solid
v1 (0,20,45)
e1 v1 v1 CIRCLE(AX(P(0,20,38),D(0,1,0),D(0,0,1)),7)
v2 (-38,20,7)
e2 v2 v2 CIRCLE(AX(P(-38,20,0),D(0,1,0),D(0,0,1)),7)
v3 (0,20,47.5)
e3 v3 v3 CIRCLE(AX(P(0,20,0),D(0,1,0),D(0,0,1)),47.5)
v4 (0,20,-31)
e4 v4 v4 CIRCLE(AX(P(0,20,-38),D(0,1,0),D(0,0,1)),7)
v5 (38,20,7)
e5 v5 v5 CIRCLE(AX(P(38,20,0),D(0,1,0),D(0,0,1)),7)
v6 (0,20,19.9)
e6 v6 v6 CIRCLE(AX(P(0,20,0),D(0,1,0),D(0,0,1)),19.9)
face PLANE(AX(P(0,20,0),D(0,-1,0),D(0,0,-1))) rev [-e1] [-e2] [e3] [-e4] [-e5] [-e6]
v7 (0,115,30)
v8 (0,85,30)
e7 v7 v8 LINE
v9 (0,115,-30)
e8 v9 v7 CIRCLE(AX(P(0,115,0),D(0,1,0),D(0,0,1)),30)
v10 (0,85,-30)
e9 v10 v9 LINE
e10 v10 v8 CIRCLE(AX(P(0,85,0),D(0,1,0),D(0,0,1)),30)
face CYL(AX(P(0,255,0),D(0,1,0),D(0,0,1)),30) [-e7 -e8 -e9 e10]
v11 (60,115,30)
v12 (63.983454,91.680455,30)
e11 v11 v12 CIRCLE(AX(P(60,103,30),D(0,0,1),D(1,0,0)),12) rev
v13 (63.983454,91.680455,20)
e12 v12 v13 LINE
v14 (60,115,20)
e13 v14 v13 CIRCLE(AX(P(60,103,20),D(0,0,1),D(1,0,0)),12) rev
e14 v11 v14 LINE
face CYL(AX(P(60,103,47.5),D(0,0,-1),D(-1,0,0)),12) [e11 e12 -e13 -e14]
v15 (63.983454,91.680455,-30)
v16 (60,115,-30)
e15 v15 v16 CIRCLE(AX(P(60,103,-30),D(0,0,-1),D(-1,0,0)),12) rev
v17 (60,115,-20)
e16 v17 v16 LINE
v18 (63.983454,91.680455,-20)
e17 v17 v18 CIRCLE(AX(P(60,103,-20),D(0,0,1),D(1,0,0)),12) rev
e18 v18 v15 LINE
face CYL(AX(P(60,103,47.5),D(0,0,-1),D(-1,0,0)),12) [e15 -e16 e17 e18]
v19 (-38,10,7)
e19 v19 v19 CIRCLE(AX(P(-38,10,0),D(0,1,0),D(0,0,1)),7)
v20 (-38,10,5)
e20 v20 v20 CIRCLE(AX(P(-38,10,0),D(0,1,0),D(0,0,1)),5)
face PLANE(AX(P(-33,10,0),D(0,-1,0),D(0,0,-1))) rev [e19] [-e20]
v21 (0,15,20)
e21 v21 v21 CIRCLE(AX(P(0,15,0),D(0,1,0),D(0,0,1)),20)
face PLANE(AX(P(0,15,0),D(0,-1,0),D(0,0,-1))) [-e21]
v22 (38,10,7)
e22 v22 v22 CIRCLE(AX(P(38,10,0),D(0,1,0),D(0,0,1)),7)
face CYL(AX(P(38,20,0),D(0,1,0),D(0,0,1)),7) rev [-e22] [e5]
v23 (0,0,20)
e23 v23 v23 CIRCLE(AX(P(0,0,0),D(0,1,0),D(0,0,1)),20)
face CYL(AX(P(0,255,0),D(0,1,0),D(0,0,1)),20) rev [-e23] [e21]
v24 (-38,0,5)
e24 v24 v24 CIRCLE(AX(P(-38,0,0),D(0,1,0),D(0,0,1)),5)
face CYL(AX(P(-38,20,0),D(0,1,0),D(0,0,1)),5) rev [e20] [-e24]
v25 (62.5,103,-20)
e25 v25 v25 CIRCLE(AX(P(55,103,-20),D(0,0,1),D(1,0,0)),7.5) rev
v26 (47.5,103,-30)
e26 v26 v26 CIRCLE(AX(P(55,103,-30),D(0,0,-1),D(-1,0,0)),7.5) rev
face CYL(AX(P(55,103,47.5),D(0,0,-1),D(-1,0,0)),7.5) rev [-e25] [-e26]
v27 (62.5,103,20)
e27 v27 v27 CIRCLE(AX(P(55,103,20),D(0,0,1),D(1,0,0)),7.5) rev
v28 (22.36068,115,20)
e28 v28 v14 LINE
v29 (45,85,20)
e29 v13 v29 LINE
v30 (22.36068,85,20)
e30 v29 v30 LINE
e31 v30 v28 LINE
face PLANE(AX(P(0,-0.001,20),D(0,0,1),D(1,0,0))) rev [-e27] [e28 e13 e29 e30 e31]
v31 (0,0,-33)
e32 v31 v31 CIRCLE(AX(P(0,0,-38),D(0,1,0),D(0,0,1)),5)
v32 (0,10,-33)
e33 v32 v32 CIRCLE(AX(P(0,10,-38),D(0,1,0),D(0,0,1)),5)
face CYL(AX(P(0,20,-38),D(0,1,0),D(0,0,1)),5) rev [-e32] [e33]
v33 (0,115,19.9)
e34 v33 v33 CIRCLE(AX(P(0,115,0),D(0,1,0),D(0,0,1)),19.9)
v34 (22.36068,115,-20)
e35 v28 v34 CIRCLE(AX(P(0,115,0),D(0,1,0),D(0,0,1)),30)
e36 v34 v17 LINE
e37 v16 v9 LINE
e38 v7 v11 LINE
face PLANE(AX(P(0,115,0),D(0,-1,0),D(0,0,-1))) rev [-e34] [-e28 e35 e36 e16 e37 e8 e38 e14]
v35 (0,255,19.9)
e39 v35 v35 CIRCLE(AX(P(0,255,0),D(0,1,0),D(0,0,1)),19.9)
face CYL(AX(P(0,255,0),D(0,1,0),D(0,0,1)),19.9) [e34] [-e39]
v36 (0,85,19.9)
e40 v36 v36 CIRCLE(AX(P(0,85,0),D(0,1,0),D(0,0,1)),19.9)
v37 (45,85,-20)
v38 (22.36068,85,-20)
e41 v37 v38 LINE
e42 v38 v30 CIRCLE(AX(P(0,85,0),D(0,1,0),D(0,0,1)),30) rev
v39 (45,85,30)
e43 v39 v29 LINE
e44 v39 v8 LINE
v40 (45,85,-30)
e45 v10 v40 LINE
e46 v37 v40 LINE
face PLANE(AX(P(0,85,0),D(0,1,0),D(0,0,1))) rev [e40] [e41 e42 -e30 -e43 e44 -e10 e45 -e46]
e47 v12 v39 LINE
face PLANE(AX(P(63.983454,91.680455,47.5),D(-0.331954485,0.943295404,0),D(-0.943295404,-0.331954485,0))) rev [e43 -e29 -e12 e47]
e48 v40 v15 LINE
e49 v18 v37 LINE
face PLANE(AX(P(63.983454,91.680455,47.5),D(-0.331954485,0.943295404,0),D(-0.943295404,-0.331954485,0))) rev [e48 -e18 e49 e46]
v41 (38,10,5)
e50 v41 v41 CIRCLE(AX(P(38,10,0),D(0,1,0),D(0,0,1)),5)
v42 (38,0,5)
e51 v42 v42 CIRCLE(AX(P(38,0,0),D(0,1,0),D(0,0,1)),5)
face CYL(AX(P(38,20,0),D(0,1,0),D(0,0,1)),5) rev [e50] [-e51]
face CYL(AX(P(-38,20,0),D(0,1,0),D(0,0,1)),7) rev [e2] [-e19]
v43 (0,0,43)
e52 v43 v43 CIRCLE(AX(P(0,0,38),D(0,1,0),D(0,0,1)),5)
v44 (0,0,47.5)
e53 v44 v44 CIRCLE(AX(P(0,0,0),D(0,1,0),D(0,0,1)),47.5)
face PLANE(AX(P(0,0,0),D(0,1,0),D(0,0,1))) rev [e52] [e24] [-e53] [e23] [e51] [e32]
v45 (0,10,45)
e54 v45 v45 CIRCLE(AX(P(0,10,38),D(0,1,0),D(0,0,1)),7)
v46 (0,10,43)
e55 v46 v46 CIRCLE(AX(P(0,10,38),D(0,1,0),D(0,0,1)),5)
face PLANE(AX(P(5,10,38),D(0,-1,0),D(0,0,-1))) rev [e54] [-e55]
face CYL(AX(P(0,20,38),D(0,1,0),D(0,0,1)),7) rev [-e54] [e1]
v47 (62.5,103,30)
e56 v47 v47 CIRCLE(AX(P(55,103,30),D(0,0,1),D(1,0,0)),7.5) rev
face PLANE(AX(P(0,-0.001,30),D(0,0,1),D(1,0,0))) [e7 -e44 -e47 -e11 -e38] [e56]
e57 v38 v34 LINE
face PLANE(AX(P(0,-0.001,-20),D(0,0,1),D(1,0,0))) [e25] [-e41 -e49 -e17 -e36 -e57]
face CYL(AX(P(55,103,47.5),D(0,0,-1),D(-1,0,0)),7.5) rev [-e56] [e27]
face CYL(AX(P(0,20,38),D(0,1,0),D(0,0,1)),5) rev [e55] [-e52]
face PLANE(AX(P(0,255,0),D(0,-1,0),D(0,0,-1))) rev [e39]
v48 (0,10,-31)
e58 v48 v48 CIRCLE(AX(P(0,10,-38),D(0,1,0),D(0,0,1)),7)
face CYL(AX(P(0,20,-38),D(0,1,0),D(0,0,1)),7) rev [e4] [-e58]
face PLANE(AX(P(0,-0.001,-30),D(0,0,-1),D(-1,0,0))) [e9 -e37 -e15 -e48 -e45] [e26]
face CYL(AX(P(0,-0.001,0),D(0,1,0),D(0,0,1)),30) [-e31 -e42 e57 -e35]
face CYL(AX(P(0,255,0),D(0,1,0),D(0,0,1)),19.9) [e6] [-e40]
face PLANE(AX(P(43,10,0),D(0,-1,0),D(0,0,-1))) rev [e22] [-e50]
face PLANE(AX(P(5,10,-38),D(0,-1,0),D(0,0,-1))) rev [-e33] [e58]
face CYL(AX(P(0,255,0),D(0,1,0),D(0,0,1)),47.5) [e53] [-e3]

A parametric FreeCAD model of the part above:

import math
import FreeCAD as App
import Part
import Sketcher

V = App.Vector


def add_polygon(sketch, points):
    """Adds a closed chain of lines whose ends are joined by coincident constraints."""
    first, n = sketch.GeometryCount, len(points)
    for a, b in zip(points, points[1:] + points[:1]):
        sketch.addGeometry(Part.LineSegment(App.Vector(*a, 0), App.Vector(*b, 0)), False)
    for i in range(n):
        sketch.addConstraint(Sketcher.Constraint("Coincident", first + i, 2, first + (i + 1) % n, 1))

doc = App.newDocument("Part")
body = doc.addObject("PartDesign::Body", "Body")

sketch1 = doc.addObject("Sketcher::SketchObject", "Sketch")
body.addObject(sketch1)
sketch1.AttachmentSupport = (doc.XY_Plane, [""])
sketch1.MapMode = "FlatFace"
add_polygon(sketch1, [(-48, 0), (-20, 0), (-20, 15), (0, 15), (0, 255), (-20, 255), (-20, 115), (-30, 115), (-30, 85), (-20, 85), (-20, 20), (-48, 20)])
sketch1.addConstraint([
    Sketcher.Constraint("Horizontal", 0),
    Sketcher.Constraint("Vertical", 1),
    Sketcher.Constraint("Horizontal", 2),
    Sketcher.Constraint("Vertical", 3),
    Sketcher.Constraint("Horizontal", 4),
    Sketcher.Constraint("Vertical", 5),
    Sketcher.Constraint("Horizontal", 6),
    Sketcher.Constraint("Vertical", 7),
    Sketcher.Constraint("Horizontal", 8),
    Sketcher.Constraint("Vertical", 9),
    Sketcher.Constraint("Horizontal", 10),
    Sketcher.Constraint("Vertical", 11),
    Sketcher.Constraint("PointOnObject", 0, 2, -1),
    Sketcher.Constraint("PointOnObject", 2, 2, -2),
    Sketcher.Constraint("Vertical", 5, 2, 8, 2),
    Sketcher.Constraint("Equal", 2, 11),
    Sketcher.Constraint("DistanceX", 2, 1, 2, 2, 20.0),
    Sketcher.Constraint("DistanceY", 1, 1, 1, 2, 15.0),
    Sketcher.Constraint("DistanceY", 3, 1, 3, 2, 240.0),
    Sketcher.Constraint("DistanceY", 5, 2, 5, 1, 140.0),
    Sketcher.Constraint("DistanceY", 7, 2, 7, 1, 30.0),
    Sketcher.Constraint("DistanceX", 0, 1, 0, 2, 27.5),
    Sketcher.Constraint("DistanceX", 4, 2, 4, 1, 19.9),
    Sketcher.Constraint("DistanceX", 6, 2, 6, 1, 10.1),
])
revolution = doc.addObject("PartDesign::Revolution", "Revolution")
body.addObject(revolution)
revolution.Profile = sketch1
revolution.ReferenceAxis = (sketch1, ["V_Axis"])
revolution.Angle = 360

sketch2 = doc.addObject("Sketcher::SketchObject", "Sketch001")
body.addObject(sketch2)
sketch2.AttachmentSupport = (doc.XY_Plane, [""])
sketch2.MapMode = "FlatFace"
sketch2.addGeometry([
    Part.LineSegment(V(60, 115, 0), V(0, 115, 0)),
    Part.LineSegment(V(0, 115, 0), V(0, 85, 0)),
    Part.LineSegment(V(0, 85, 0), V(45, 85, 0)),
    Part.LineSegment(V(45, 85, 0), V(64, 92, 0)),
    Part.ArcOfCircle(Part.Circle(V(60, 103, 0), V(0, 0, 1), 12), math.radians(-71), math.radians(90)),
    Part.Circle(V(55, 103, 0), V(0, 0, 1), 8),
], False)
sketch2.addConstraint([
    Sketcher.Constraint("Coincident", 0, 2, 1, 1),
    Sketcher.Constraint("Coincident", 1, 2, 2, 1),
    Sketcher.Constraint("Coincident", 2, 2, 3, 1),
    Sketcher.Constraint("Tangent", 3, 2, 4, 1),
    Sketcher.Constraint("Tangent", 4, 2, 0, 1),
    Sketcher.Constraint("Horizontal", 0),
    Sketcher.Constraint("Vertical", 1),
    Sketcher.Constraint("Horizontal", 2),
    Sketcher.Constraint("PointOnObject", 0, 2, -2),
    Sketcher.Constraint("Horizontal", 4, 3, 5, 3),
    Sketcher.Constraint("Diameter", 5, 15.0),
    Sketcher.Constraint("Radius", 4, 12.0),
    Sketcher.Constraint("DistanceX", 0, 2, 0, 1, 60.0),
    Sketcher.Constraint("DistanceX", 2, 1, 2, 2, 45.0),
    Sketcher.Constraint("DistanceY", 1, 2, 1, 1, 30.0),
    Sketcher.Constraint("DistanceY", -1, 1, 4, 3, 103.0),
    Sketcher.Constraint("DistanceX", -1, 1, 5, 3, 55.0),
])
pad1 = doc.addObject("PartDesign::Pad", "Pad")
body.addObject(pad1)
pad1.Profile = sketch2
pad1.Type = "TwoLengths"
pad1.Length = 47.5
pad1.Length2 = 47.5

sketch3 = doc.addObject("Sketcher::SketchObject", "Sketch002")
body.addObject(sketch3)
sketch3.AttachmentSupport = (doc.XZ_Plane, [""])
sketch3.MapMode = "FlatFace"
sketch3.AttachmentOffset = App.Placement(V(0, 0, -115), App.Rotation())
add_polygon(sketch3, [(0, 30), (0, 48), (60, 48), (60, 30)])
sketch3.addConstraint([
    Sketcher.Constraint("Vertical", 0),
    Sketcher.Constraint("Horizontal", 1),
    Sketcher.Constraint("Vertical", 2),
    Sketcher.Constraint("Horizontal", 3),
    Sketcher.Constraint("PointOnObject", 0, 2, -2),
    Sketcher.Constraint("DistanceX", 1, 1, 1, 2, 60.0),
    Sketcher.Constraint("DistanceY", 0, 1, 0, 2, 17.5),
    Sketcher.Constraint("DistanceY", -1, 1, 2, 2, 30.0),
])
pocket1 = doc.addObject("PartDesign::Pocket", "Pocket")
body.addObject(pocket1)
pocket1.Profile = sketch3
pocket1.Type = "UpToFirst"
pocket1.Reversed = True

sketch4 = doc.addObject("Sketcher::SketchObject", "Sketch003")
body.addObject(sketch4)
sketch4.AttachmentSupport = (doc.XZ_Plane, [""])
sketch4.MapMode = "FlatFace"
sketch4.AttachmentOffset = App.Placement(V(0, 0, -115), App.Rotation())
add_polygon(sketch4, [(60, 30), (60, 48), (72, 48), (72, 30)])
sketch4.addConstraint([
    Sketcher.Constraint("Vertical", 0),
    Sketcher.Constraint("Horizontal", 1),
    Sketcher.Constraint("Vertical", 2),
    Sketcher.Constraint("Horizontal", 3),
    Sketcher.Constraint("DistanceX", 1, 1, 1, 2, 12.0),
    Sketcher.Constraint("DistanceY", 0, 1, 0, 2, 17.5),
    Sketcher.Constraint("DistanceX", -1, 1, 0, 2, 60.0),
    Sketcher.Constraint("DistanceY", -1, 1, 2, 2, 30.0),
])
pocket2 = doc.addObject("PartDesign::Pocket", "Pocket001")
body.addObject(pocket2)
pocket2.Profile = sketch4
pocket2.Length = 24.72136
pocket2.Reversed = True

sketch5 = doc.addObject("Sketcher::SketchObject", "Sketch004")
body.addObject(sketch5)
sketch5.AttachmentSupport = (doc.XZ_Plane, [""])
sketch5.MapMode = "FlatFace"
sketch5.AttachmentOffset = App.Placement(V(0, 0, -115), App.Rotation())
sketch5.addGeometry([
    Part.ArcOfCircle(Part.Circle(V(0, 0, 0), V(0, 0, 1), 30), math.radians(0), math.radians(42)),
    Part.LineSegment(V(22, 20, 0), V(60, 20, 0)),
    Part.LineSegment(V(60, 20, 0), V(60, 0, 0)),
    Part.LineSegment(V(60, 0, 0), V(30, 0, 0)),
], False)
sketch5.addConstraint([
    Sketcher.Constraint("Coincident", 0, 2, 1, 1),
    Sketcher.Constraint("Coincident", 1, 2, 2, 1),
    Sketcher.Constraint("Coincident", 2, 2, 3, 1),
    Sketcher.Constraint("Coincident", 3, 2, 0, 1),
    Sketcher.Constraint("Horizontal", 1),
    Sketcher.Constraint("Vertical", 2),
    Sketcher.Constraint("Horizontal", 3),
    Sketcher.Constraint("Coincident", 0, 3, -1, 1),
    Sketcher.Constraint("PointOnObject", 2, 2, -1),
    Sketcher.Constraint("Radius", 0, 30.0),
    Sketcher.Constraint("DistanceX", 3, 2, 3, 1, 30.0),
    Sketcher.Constraint("DistanceY", 2, 2, 2, 1, 20.0),
])
pocket3 = doc.addObject("PartDesign::Pocket", "Pocket002")
body.addObject(pocket3)
pocket3.Profile = sketch5
pocket3.Type = "UpToFirst"
pocket3.Reversed = True

sketch6 = doc.addObject("Sketcher::SketchObject", "Sketch005")
body.addObject(sketch6)
sketch6.AttachmentSupport = (doc.XZ_Plane, [""])
sketch6.MapMode = "FlatFace"
sketch6.AttachmentOffset = App.Placement(V(0, 0, -115), App.Rotation())
add_polygon(sketch6, [(60, 0), (60, 20), (72, 20), (72, 0)])
sketch6.addConstraint([
    Sketcher.Constraint("Vertical", 0),
    Sketcher.Constraint("Horizontal", 1),
    Sketcher.Constraint("Vertical", 2),
    Sketcher.Constraint("Horizontal", 3),
    Sketcher.Constraint("PointOnObject", 2, 2, -1),
    Sketcher.Constraint("DistanceX", 1, 1, 1, 2, 12.0),
    Sketcher.Constraint("DistanceY", 0, 1, 0, 2, 20.0),
    Sketcher.Constraint("DistanceX", -1, 1, 0, 2, 60.0),
])
pocket4 = doc.addObject("PartDesign::Pocket", "Pocket003")
body.addObject(pocket4)
pocket4.Profile = sketch6
pocket4.Length = 24.72136
pocket4.Reversed = True

sketch7 = doc.addObject("Sketcher::SketchObject", "Sketch006")
body.addObject(sketch7)
sketch7.AttachmentSupport = (doc.XZ_Plane, [""])
sketch7.MapMode = "FlatFace"
sketch7.AttachmentOffset = App.Placement(V(0, 0, -115), App.Rotation())
sketch7.addGeometry([
    Part.LineSegment(V(60, -20, 0), V(22, -20, 0)),
    Part.ArcOfCircle(Part.Circle(V(0, 0, 0), V(0, 0, 1), 30), math.radians(-42), math.radians(0)),
    Part.LineSegment(V(30, 0, 0), V(60, 0, 0)),
    Part.LineSegment(V(60, 0, 0), V(60, -20, 0)),
], False)
sketch7.addConstraint([
    Sketcher.Constraint("Coincident", 0, 2, 1, 1),
    Sketcher.Constraint("Coincident", 1, 2, 2, 1),
    Sketcher.Constraint("Coincident", 2, 2, 3, 1),
    Sketcher.Constraint("Coincident", 3, 2, 0, 1),
    Sketcher.Constraint("Horizontal", 0),
    Sketcher.Constraint("Horizontal", 2),
    Sketcher.Constraint("Vertical", 3),
    Sketcher.Constraint("Coincident", 1, 3, -1, 1),
    Sketcher.Constraint("PointOnObject", 1, 2, -1),
    Sketcher.Constraint("Radius", 1, 30.0),
    Sketcher.Constraint("DistanceX", 2, 1, 2, 2, 30.0),
    Sketcher.Constraint("DistanceY", 3, 2, 3, 1, 20.0),
])
pocket5 = doc.addObject("PartDesign::Pocket", "Pocket004")
body.addObject(pocket5)
pocket5.Profile = sketch7
pocket5.Type = "UpToFirst"
pocket5.Reversed = True

sketch8 = doc.addObject("Sketcher::SketchObject", "Sketch007")
body.addObject(sketch8)
sketch8.AttachmentSupport = (doc.XZ_Plane, [""])
sketch8.MapMode = "FlatFace"
sketch8.AttachmentOffset = App.Placement(V(0, 0, -115), App.Rotation())
add_polygon(sketch8, [(60, -20), (60, 0), (72, 0), (72, -20)])
sketch8.addConstraint([
    Sketcher.Constraint("Vertical", 0),
    Sketcher.Constraint("Horizontal", 1),
    Sketcher.Constraint("Vertical", 2),
    Sketcher.Constraint("Horizontal", 3),
    Sketcher.Constraint("PointOnObject", 0, 2, -1),
    Sketcher.Constraint("DistanceX", 1, 1, 1, 2, 12.0),
    Sketcher.Constraint("DistanceY", 0, 1, 0, 2, 20.0),
    Sketcher.Constraint("DistanceX", -1, 1, 0, 2, 60.0),
])
pocket6 = doc.addObject("PartDesign::Pocket", "Pocket005")
body.addObject(pocket6)
pocket6.Profile = sketch8
pocket6.Length = 24.72136
pocket6.Reversed = True

sketch9 = doc.addObject("Sketcher::SketchObject", "Sketch008")
body.addObject(sketch9)
sketch9.AttachmentSupport = (doc.XZ_Plane, [""])
sketch9.MapMode = "FlatFace"
sketch9.AttachmentOffset = App.Placement(V(0, 0, -115), App.Rotation())
add_polygon(sketch9, [(0, -48), (0, -30), (60, -30), (60, -48)])
sketch9.addConstraint([
    Sketcher.Constraint("Vertical", 0),
    Sketcher.Constraint("Horizontal", 1),
    Sketcher.Constraint("Vertical", 2),
    Sketcher.Constraint("Horizontal", 3),
    Sketcher.Constraint("PointOnObject", 0, 2, -2),
    Sketcher.Constraint("DistanceX", 1, 1, 1, 2, 60.0),
    Sketcher.Constraint("DistanceY", 0, 1, 0, 2, 17.5),
    Sketcher.Constraint("DistanceY", 0, 2, -1, 1, 30.0),
])
pocket7 = doc.addObject("PartDesign::Pocket", "Pocket006")
body.addObject(pocket7)
pocket7.Profile = sketch9
pocket7.Type = "UpToFirst"
pocket7.Reversed = True

sketch10 = doc.addObject("Sketcher::SketchObject", "Sketch009")
body.addObject(sketch10)
sketch10.AttachmentSupport = (doc.XZ_Plane, [""])
sketch10.MapMode = "FlatFace"
sketch10.AttachmentOffset = App.Placement(V(0, 0, -115), App.Rotation())
add_polygon(sketch10, [(60, -48), (60, -30), (72, -30), (72, -48)])
sketch10.addConstraint([
    Sketcher.Constraint("Vertical", 0),
    Sketcher.Constraint("Horizontal", 1),
    Sketcher.Constraint("Vertical", 2),
    Sketcher.Constraint("Horizontal", 3),
    Sketcher.Constraint("DistanceX", 1, 1, 1, 2, 12.0),
    Sketcher.Constraint("DistanceY", 0, 1, 0, 2, 17.5),
    Sketcher.Constraint("DistanceX", -1, 1, 0, 2, 60.0),
    Sketcher.Constraint("DistanceY", 0, 2, -1, 1, 30.0),
])
pocket8 = doc.addObject("PartDesign::Pocket", "Pocket007")
body.addObject(pocket8)
pocket8.Profile = sketch10
pocket8.Length = 24.72136
pocket8.Reversed = True

sketch11 = doc.addObject("Sketcher::SketchObject", "Sketch010")
body.addObject(sketch11)
sketch11.AttachmentSupport = (doc.XZ_Plane, [""])
sketch11.MapMode = "FlatFace"
sketch11.AttachmentOffset = App.Placement(V(0, 0, -20), App.Rotation())
sketch11.addGeometry([
    Part.Circle(V(38, 0, 0), V(0, 0, 1), 5),
    Part.Circle(V(0, -38, 0), V(0, 0, 1), 5),
    Part.Circle(V(-38, 0, 0), V(0, 0, 1), 5),
    Part.Circle(V(0, 38, 0), V(0, 0, 1), 5),
], False)
sketch11.addConstraint([
    Sketcher.Constraint("Equal", 0, 1),
    Sketcher.Constraint("Equal", 1, 2),
    Sketcher.Constraint("Equal", 2, 3),
    Sketcher.Constraint("Symmetric", 0, 3, 2, 3, -1, 1),
    Sketcher.Constraint("Symmetric", 1, 3, 3, 3, -1, 1),
    Sketcher.Constraint("PointOnObject", 0, 3, -1),
    Sketcher.Constraint("PointOnObject", 1, 3, -2),
    Sketcher.Constraint("Diameter", 0, 10.0),
    Sketcher.Constraint("DistanceX", -1, 1, 0, 3, 38.0),
    Sketcher.Constraint("DistanceY", 1, 3, -1, 1, 38.0),
])
doc.recompute()
hole = doc.addObject("PartDesign::Hole", "Hole")
body.addObject(hole)
hole.Profile = sketch11
hole.ThreadType = "None"
hole.Diameter = 10
hole.DepthType = "ThroughAll"
hole.HoleCutType = "Counterbore"
hole.HoleCutDiameter = 14
hole.HoleCutDepth = 10
hole.Reversed = True

doc.recompute()
